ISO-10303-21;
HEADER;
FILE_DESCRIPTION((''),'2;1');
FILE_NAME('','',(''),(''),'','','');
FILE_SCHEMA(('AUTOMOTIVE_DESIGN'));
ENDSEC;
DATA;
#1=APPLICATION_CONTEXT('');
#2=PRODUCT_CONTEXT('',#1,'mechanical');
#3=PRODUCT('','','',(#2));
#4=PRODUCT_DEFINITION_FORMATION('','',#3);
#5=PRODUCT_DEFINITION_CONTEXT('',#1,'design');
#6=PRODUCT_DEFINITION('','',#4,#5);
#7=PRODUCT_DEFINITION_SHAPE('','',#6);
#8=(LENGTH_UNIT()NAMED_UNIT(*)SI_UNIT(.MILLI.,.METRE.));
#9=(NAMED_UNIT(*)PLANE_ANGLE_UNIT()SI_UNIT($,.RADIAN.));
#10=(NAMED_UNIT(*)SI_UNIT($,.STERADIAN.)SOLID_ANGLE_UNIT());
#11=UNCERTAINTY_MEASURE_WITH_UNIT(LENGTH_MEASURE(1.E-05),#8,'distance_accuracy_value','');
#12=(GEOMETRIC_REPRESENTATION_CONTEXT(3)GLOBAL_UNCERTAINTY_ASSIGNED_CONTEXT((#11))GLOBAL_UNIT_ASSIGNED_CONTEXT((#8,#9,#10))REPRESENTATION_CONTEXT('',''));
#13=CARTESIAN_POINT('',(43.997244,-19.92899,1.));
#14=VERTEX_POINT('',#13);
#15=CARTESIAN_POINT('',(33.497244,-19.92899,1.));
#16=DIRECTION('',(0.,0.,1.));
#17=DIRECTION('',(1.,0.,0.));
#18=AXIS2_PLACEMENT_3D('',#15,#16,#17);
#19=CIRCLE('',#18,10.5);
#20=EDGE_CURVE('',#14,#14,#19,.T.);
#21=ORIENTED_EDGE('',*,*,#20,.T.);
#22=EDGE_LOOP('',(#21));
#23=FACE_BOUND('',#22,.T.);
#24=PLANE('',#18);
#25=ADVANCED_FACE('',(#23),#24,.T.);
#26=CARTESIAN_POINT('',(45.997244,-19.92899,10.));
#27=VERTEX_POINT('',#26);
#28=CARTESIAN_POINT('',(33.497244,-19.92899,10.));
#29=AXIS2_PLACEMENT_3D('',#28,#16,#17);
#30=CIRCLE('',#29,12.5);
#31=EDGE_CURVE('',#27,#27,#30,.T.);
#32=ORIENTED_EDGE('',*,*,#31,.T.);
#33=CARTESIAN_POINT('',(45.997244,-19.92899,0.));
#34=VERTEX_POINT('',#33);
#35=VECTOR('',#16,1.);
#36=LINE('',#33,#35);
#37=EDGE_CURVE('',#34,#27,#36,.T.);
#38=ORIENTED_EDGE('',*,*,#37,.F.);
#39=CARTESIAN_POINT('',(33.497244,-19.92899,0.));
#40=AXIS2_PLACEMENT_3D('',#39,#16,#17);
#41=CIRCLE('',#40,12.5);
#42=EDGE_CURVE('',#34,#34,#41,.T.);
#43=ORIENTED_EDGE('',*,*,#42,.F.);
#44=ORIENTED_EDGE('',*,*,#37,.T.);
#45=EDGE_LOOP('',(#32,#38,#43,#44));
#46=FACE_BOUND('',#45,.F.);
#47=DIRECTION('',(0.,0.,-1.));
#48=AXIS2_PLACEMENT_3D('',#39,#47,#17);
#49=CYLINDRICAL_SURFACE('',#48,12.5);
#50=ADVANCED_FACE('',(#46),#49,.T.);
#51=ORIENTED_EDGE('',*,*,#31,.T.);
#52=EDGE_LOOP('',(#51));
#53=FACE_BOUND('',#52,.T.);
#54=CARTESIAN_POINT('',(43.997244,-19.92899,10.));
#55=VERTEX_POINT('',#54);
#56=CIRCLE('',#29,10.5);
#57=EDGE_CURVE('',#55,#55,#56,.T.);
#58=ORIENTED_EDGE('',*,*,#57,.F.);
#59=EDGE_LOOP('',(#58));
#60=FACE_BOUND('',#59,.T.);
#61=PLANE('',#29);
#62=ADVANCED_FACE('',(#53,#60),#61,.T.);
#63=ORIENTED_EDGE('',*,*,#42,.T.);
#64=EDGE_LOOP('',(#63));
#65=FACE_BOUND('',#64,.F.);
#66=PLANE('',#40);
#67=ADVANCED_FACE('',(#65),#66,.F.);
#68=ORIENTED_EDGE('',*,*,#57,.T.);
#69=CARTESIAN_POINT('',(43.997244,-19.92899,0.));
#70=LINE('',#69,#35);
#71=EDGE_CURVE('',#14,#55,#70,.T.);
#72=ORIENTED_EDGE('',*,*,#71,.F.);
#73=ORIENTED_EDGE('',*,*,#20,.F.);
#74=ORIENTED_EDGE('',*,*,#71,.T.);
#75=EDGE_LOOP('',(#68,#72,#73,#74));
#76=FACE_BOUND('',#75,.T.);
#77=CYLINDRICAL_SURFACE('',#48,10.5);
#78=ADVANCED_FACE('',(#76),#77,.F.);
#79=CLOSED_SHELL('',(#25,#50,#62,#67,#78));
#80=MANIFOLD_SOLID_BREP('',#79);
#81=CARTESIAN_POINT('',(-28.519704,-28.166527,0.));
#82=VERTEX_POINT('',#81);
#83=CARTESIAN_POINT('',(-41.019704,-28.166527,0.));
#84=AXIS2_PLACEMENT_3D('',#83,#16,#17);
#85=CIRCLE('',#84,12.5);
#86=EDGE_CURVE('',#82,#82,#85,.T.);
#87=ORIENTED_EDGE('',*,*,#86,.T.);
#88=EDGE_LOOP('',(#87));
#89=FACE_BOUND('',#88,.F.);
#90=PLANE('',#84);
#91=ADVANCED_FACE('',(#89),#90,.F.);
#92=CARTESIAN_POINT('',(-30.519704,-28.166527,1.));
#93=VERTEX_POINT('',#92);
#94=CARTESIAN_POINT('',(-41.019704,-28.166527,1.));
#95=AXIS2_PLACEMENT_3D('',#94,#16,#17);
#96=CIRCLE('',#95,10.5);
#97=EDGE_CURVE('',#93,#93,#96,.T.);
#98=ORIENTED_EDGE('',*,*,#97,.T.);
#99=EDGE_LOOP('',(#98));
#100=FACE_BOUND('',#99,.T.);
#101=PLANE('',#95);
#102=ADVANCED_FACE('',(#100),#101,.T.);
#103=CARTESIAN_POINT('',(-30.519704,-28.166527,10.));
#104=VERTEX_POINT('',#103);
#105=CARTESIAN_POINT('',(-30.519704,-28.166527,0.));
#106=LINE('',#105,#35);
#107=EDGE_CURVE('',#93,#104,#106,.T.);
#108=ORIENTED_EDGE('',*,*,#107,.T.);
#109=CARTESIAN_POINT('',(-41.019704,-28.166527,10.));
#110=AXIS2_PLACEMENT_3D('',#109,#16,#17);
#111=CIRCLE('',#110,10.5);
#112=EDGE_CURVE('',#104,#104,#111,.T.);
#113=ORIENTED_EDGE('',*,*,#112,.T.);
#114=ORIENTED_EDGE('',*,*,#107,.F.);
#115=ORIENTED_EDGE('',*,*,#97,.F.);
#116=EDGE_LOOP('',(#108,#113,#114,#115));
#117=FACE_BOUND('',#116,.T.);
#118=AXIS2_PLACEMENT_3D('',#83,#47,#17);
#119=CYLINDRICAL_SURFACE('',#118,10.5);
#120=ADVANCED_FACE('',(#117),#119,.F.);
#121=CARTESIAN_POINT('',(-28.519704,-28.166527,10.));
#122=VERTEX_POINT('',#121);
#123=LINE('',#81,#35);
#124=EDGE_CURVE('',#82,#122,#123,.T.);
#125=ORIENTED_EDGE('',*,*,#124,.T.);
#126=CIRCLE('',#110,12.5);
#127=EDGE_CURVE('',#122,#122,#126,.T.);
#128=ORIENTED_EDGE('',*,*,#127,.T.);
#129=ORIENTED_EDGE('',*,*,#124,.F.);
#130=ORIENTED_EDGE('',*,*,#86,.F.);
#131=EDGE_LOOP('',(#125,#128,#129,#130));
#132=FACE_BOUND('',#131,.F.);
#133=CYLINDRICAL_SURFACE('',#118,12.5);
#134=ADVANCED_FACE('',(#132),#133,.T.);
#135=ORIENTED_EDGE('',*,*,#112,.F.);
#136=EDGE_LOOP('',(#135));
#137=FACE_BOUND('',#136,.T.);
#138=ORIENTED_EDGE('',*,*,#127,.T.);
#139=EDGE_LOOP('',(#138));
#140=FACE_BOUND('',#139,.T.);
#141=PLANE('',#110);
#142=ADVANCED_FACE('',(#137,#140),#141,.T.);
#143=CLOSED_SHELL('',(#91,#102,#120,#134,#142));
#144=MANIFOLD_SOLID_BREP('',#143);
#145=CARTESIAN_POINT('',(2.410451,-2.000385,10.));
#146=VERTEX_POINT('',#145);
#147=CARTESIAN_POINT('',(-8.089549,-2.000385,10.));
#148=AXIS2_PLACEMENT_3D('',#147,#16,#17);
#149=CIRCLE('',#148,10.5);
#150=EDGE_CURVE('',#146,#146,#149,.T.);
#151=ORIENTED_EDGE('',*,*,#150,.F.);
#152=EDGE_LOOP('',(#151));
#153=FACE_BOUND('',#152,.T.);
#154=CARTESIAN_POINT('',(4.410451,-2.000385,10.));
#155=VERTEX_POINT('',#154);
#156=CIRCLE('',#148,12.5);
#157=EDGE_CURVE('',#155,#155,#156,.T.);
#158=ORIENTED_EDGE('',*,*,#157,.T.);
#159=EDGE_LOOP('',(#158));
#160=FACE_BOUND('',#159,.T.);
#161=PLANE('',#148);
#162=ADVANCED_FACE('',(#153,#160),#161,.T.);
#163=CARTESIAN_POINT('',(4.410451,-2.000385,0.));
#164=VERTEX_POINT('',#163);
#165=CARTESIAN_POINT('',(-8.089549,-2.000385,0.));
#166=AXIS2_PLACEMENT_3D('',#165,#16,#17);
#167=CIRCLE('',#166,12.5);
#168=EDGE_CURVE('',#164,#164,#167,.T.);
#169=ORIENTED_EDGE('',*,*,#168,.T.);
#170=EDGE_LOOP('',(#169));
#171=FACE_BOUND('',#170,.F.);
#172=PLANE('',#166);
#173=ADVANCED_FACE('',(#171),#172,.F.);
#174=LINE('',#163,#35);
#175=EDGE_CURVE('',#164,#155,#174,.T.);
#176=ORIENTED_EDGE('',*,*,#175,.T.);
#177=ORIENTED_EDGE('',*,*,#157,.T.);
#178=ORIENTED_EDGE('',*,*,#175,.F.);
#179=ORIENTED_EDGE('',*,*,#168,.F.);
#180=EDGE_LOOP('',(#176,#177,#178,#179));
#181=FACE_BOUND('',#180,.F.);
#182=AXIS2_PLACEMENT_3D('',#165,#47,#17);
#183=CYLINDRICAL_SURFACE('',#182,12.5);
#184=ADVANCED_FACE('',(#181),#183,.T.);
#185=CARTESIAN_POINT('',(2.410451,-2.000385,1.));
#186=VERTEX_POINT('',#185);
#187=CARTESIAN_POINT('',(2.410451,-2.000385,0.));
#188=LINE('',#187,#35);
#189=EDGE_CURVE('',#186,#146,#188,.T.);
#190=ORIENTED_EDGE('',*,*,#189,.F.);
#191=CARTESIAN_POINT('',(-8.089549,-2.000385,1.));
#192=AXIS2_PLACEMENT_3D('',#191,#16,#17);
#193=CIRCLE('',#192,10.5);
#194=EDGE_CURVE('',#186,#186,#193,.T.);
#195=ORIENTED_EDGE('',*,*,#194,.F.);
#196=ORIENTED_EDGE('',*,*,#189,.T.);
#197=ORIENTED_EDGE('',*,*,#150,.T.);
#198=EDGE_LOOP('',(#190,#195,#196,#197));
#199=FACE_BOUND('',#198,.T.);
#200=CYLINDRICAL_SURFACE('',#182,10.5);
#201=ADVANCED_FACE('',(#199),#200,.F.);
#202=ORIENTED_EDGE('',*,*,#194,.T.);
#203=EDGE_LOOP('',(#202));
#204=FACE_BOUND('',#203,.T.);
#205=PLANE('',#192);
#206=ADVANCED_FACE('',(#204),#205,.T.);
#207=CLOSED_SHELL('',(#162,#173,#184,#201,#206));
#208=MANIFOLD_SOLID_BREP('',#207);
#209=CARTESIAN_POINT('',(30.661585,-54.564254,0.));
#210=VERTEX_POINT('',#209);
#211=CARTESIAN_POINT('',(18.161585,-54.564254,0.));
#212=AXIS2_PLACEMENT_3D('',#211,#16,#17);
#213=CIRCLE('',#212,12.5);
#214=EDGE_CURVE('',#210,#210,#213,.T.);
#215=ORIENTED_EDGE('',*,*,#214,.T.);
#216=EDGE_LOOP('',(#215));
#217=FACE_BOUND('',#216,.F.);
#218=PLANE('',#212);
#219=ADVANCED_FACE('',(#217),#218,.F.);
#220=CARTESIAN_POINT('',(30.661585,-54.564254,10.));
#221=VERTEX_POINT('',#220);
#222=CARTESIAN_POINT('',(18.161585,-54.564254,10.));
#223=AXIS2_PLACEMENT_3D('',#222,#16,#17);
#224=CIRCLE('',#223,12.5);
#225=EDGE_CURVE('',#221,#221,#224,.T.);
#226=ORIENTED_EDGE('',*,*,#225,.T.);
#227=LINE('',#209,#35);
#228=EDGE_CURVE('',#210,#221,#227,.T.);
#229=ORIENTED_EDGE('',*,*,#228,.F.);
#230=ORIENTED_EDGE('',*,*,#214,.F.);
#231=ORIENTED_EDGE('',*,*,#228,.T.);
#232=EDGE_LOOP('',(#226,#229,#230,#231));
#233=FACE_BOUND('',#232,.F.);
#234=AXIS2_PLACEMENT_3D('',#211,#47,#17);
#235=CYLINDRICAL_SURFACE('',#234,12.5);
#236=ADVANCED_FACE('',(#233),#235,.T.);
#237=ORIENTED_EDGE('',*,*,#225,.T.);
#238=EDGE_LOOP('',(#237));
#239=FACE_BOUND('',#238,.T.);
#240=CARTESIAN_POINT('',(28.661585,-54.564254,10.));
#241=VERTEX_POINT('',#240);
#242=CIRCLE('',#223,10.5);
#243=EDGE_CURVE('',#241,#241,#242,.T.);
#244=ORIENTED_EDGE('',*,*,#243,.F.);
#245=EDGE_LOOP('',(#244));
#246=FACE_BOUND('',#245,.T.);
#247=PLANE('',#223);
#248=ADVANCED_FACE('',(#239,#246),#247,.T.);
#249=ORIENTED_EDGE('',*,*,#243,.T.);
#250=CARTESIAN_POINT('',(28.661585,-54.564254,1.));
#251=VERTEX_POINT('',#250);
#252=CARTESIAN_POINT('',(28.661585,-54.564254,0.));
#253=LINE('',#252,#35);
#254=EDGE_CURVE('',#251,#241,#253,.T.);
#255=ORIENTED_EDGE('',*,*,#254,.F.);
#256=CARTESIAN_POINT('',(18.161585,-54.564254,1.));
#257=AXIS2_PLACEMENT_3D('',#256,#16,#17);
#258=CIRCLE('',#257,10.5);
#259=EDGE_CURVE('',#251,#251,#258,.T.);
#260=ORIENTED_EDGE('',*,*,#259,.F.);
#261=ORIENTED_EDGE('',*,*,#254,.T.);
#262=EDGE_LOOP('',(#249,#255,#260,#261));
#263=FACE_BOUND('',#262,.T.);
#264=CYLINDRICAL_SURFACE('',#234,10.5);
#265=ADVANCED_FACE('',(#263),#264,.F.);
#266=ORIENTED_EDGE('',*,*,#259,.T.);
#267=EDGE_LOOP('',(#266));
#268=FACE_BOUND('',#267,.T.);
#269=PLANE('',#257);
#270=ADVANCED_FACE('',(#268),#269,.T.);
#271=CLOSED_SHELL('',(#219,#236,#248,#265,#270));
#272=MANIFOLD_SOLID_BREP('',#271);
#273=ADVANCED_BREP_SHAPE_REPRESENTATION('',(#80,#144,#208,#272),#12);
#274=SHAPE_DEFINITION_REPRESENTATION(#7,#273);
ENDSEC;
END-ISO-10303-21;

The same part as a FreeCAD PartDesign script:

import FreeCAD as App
import Part
import Sketcher
from FreeCAD import Vector
Q = App.Units.Quantity

doc = App.newDocument("Part")
body = doc.addObject("PartDesign::Body", "Body")
body.AllowCompound = True

sketch1 = body.newObject("Sketcher::SketchObject", "Sketch")
sketch1.AttachmentSupport = (doc.getObject("XY_Plane"), [""])
sketch1.MapMode = "FlatFace"
sketch1.addGeometry(Part.Circle(Vector(-41.019704, -28.166527, 0), Vector(0, 0, 1), 12.5), False)
sketch1.addGeometry(Part.Circle(Vector(-41.019704, -28.166527, 0), Vector(0, 0, 1), 10.5), False)
sketch1.addGeometry(Part.Circle(Vector(-8.089549, -2.000385, 0), Vector(0, 0, 1), 12.5), False)
sketch1.addGeometry(Part.Circle(Vector(-8.089549, -2.000385, 0), Vector(0, 0, 1), 10.5), False)
sketch1.addGeometry(Part.Circle(Vector(33.497244, -19.92899, 0), Vector(0, 0, 1), 12.5), False)
sketch1.addGeometry(Part.Circle(Vector(33.497244, -19.92899, 0), Vector(0, 0, 1), 10.5), False)
sketch1.addGeometry(Part.Circle(Vector(18.161585, -54.564254, 0), Vector(0, 0, 1), 12.5), False)
sketch1.addGeometry(Part.Circle(Vector(18.161585, -54.564254, 0), Vector(0, 0, 1), 10.5), False)
sketch1.addConstraint(Sketcher.Constraint("Coincident", 1, 3, 0, 3))
sketch1.addConstraint(Sketcher.Constraint("Coincident", 3, 3, 2, 3))
sketch1.addConstraint(Sketcher.Constraint("Coincident", 5, 3, 4, 3))
sketch1.addConstraint(Sketcher.Constraint("Coincident", 7, 3, 6, 3))
sketch1.addConstraint(Sketcher.Constraint("Equal", 0, 2))
sketch1.addConstraint(Sketcher.Constraint("Equal", 1, 3))
sketch1.addConstraint(Sketcher.Constraint("Equal", 2, 4))
sketch1.addConstraint(Sketcher.Constraint("Equal", 3, 5))
sketch1.addConstraint(Sketcher.Constraint("Equal", 4, 6))
sketch1.addConstraint(Sketcher.Constraint("Equal", 5, 7))
sketch1.addConstraint(Sketcher.Constraint("Diameter", 0, Q("25 mm")))
sketch1.addConstraint(Sketcher.Constraint("Diameter", 1, Q("21 mm")))
sketch1.addConstraint(Sketcher.Constraint("DistanceX", 2, 3, -1, 1, Q("8.089549 mm")))
sketch1.addConstraint(Sketcher.Constraint("DistanceY", 4, 3, -1, 1, Q("19.92899 mm")))
sketch1.addConstraint(Sketcher.Constraint("DistanceY", 0, 3, 2, 3, Q("26.166142 mm")))
sketch1.addConstraint(Sketcher.Constraint("DistanceX", 0, 3, 4, 3, Q("74.516948 mm")))
sketch1.addConstraint(Sketcher.Constraint("DistanceX", 6, 3, 4, 3, Q("15.335659 mm")))
sketch1.addConstraint(Sketcher.Constraint("DistanceY", 6, 3, 2, 3, Q("52.563869 mm")))
sketch1.addConstraint(Sketcher.Constraint("DistanceX", 0, 3, -1, 1, Q("41.019704 mm")))
sketch1.addConstraint(Sketcher.Constraint("DistanceY", 0, 3, -1, 1, Q("28.166527 mm")))
pad1 = body.newObject("PartDesign::Pad", "Pad")
pad1.Profile = sketch1
pad1.Length = 10

sketch2 = body.newObject("Sketcher::SketchObject", "Sketch001")
sketch2.AttachmentSupport = (doc.getObject("XY_Plane"), [""])
sketch2.MapMode = "FlatFace"
sketch2.addGeometry(Part.Circle(Vector(-41.019704, -28.166527, 0), Vector(0, 0, 1), 10.5), False)
sketch2.addGeometry(Part.Circle(Vector(-8.089549, -2.000385, 0), Vector(0, 0, 1), 10.5), False)
sketch2.addGeometry(Part.Circle(Vector(33.497244, -19.92899, 0), Vector(0, 0, 1), 10.5), False)
sketch2.addGeometry(Part.Circle(Vector(18.161585, -54.564254, 0), Vector(0, 0, 1), 10.5), False)
sketch2.addConstraint(Sketcher.Constraint("Equal", 0, 1))
sketch2.addConstraint(Sketcher.Constraint("Equal", 1, 2))
sketch2.addConstraint(Sketcher.Constraint("Equal", 2, 3))
sketch2.addConstraint(Sketcher.Constraint("Diameter", 0, Q("21 mm")))
sketch2.addConstraint(Sketcher.Constraint("DistanceX", 1, 3, -1, 1, Q("8.089549 mm")))
sketch2.addConstraint(Sketcher.Constraint("DistanceY", 2, 3, -1, 1, Q("19.92899 mm")))
sketch2.addConstraint(Sketcher.Constraint("DistanceY", 0, 3, 1, 3, Q("26.166142 mm")))
sketch2.addConstraint(Sketcher.Constraint("DistanceX", 0, 3, 2, 3, Q("74.516948 mm")))
sketch2.addConstraint(Sketcher.Constraint("DistanceX", 3, 3, 2, 3, Q("15.335659 mm")))
sketch2.addConstraint(Sketcher.Constraint("DistanceY", 3, 3, 1, 3, Q("52.563869 mm")))
sketch2.addConstraint(Sketcher.Constraint("DistanceX", 0, 3, -1, 1, Q("41.019704 mm")))
sketch2.addConstraint(Sketcher.Constraint("DistanceY", 0, 3, -1, 1, Q("28.166527 mm")))
pad2 = body.newObject("PartDesign::Pad", "Pad001")
pad2.Profile = sketch2
pad2.Length = 1

doc.recompute()
